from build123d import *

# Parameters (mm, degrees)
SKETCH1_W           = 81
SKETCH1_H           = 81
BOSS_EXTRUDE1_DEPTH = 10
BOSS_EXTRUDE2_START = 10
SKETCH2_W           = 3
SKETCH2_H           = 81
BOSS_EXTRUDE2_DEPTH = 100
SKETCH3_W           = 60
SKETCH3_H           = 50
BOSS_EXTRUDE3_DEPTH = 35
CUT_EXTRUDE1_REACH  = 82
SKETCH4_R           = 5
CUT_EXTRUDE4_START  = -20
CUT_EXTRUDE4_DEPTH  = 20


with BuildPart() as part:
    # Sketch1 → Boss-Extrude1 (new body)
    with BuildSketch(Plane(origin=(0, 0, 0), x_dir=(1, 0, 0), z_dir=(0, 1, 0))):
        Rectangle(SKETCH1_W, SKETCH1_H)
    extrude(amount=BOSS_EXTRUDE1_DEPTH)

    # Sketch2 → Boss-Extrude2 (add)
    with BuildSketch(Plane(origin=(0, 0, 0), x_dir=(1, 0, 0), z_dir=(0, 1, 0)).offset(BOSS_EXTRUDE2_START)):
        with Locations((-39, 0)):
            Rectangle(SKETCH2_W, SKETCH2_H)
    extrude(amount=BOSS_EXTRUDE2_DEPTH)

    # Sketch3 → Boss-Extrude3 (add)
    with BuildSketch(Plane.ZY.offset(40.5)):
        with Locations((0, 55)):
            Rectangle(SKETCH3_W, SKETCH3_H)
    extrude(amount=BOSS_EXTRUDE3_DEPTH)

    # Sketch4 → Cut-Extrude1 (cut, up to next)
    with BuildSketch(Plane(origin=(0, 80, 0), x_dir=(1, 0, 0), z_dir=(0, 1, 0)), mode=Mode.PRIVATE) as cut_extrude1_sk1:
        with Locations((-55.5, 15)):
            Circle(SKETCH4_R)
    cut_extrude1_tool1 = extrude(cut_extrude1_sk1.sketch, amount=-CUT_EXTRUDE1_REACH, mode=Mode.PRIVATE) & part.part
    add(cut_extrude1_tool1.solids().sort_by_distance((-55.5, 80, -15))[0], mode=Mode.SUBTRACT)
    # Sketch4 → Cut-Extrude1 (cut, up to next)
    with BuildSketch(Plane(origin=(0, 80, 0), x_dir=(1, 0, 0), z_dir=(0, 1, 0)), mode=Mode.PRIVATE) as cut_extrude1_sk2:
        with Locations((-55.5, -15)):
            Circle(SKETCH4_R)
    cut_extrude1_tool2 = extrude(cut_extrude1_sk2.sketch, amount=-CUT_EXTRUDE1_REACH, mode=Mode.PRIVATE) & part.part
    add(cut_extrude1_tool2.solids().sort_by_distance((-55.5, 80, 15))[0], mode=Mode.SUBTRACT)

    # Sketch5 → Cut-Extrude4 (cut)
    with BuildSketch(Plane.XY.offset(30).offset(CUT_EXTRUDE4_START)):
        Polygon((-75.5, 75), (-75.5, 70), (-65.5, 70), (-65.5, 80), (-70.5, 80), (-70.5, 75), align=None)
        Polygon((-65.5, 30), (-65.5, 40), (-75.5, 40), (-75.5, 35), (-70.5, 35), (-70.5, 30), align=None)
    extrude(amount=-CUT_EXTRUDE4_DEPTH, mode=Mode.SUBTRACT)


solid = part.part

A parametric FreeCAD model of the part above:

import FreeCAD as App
import Part
import Sketcher
Q = App.Units.Quantity

doc = App.newDocument("Part")
body = doc.addObject("PartDesign::Body", "Body")

sketch1 = body.newObject("Sketcher::SketchObject", "Sketch")
sketch1.AttachmentSupport = (doc.getObject("XZ_Plane"), [""])
sketch1.MapMode = "FlatFace"
sketch1.addGeometry([
    Part.LineSegment(App.Vector(-40, -40, 0), App.Vector(-40, 40, 0)),
    Part.LineSegment(App.Vector(-40, 40, 0), App.Vector(40, 40, 0)),
    Part.LineSegment(App.Vector(40, 40, 0), App.Vector(40, -40, 0)),
    Part.LineSegment(App.Vector(40, -40, 0), App.Vector(-40, -40, 0)),
], False)
sketch1.addConstraint([
    Sketcher.Constraint("Coincident", 0, 2, 1, 1),
    Sketcher.Constraint("Coincident", 1, 2, 2, 1),
    Sketcher.Constraint("Coincident", 2, 2, 3, 1),
    Sketcher.Constraint("Coincident", 3, 2, 0, 1),
    Sketcher.Constraint("Vertical", 0),
    Sketcher.Constraint("Horizontal", 1),
    Sketcher.Constraint("Vertical", 2),
    Sketcher.Constraint("Horizontal", 3),
    Sketcher.Constraint("Symmetric", 0, 2, 2, 2, -1, 1),
    Sketcher.Constraint("Equal", 3, 0),
    Sketcher.Constraint("DistanceX", 1, 1, 1, 2, Q("81 mm")),
])
pad1 = body.newObject("PartDesign::Pad", "Pad")
pad1.Profile = sketch1
pad1.Length = 10
pad1.Reversed = True

sketch2 = body.newObject("Sketcher::SketchObject", "Sketch001")
sketch2.AttachmentSupport = (doc.getObject("XZ_Plane"), [""])
sketch2.MapMode = "FlatFace"
sketch2.AttachmentOffset = App.Placement(App.Vector(0, 0, -10), App.Rotation())
sketch2.addGeometry([
    Part.LineSegment(App.Vector(-40.5, -40.5, 0), App.Vector(-40.5, 40.5, 0)),
    Part.LineSegment(App.Vector(-40.5, 40.5, 0), App.Vector(-37.5, 40.5, 0)),
    Part.LineSegment(App.Vector(-37.5, 40.5, 0), App.Vector(-37.5, -40.5, 0)),
    Part.LineSegment(App.Vector(-37.5, -40.5, 0), App.Vector(-40.5, -40.5, 0)),
], False)
sketch2.addConstraint([
    Sketcher.Constraint("Coincident", 0, 2, 1, 1),
    Sketcher.Constraint("Coincident", 1, 2, 2, 1),
    Sketcher.Constraint("Coincident", 2, 2, 3, 1),
    Sketcher.Constraint("Coincident", 3, 2, 0, 1),
    Sketcher.Constraint("Vertical", 0),
    Sketcher.Constraint("Horizontal", 1),
    Sketcher.Constraint("Vertical", 2),
    Sketcher.Constraint("Horizontal", 3),
    Sketcher.Constraint("DistanceX", 1, 1, 1, 2, Q("3 mm")),
    Sketcher.Constraint("DistanceY", 0, 1, 0, 2, Q("81 mm")),
    Sketcher.Constraint("DistanceX", 0, 2, -1, 1, Q("40.5 mm")),
    Sketcher.Constraint("DistanceY", -1, 1, 0, 2, Q("40.5 mm")),
])
pad2 = body.newObject("PartDesign::Pad", "Pad001")
pad2.Profile = sketch2
pad2.Length = 100
pad2.Reversed = True

sketch3 = body.newObject("Sketcher::SketchObject", "Sketch002")
sketch3.AttachmentSupport = (doc.getObject("YZ_Plane"), [""])
sketch3.MapMode = "FlatFace"
sketch3.AttachmentOffset = App.Placement(App.Vector(0, 0, -40.5), App.Rotation())
sketch3.addGeometry([
    Part.LineSegment(App.Vector(80, -30, 0), App.Vector(30, -30, 0)),
    Part.LineSegment(App.Vector(30, -30, 0), App.Vector(30, 30, 0)),
    Part.LineSegment(App.Vector(30, 30, 0), App.Vector(80, 30, 0)),
    Part.LineSegment(App.Vector(80, 30, 0), App.Vector(80, -30, 0)),
], False)
sketch3.addConstraint([
    Sketcher.Constraint("Coincident", 0, 2, 1, 1),
    Sketcher.Constraint("Coincident", 1, 2, 2, 1),
    Sketcher.Constraint("Coincident", 2, 2, 3, 1),
    Sketcher.Constraint("Coincident", 3, 2, 0, 1),
    Sketcher.Constraint("Horizontal", 0),
    Sketcher.Constraint("Vertical", 1),
    Sketcher.Constraint("Horizontal", 2),
    Sketcher.Constraint("Vertical", 3),
    Sketcher.Constraint("DistanceX", 0, 2, 0, 1, Q("50 mm")),
    Sketcher.Constraint("DistanceY", 1, 1, 1, 2, Q("60 mm")),
    Sketcher.Constraint("DistanceX", -1, 1, 0, 2, Q("30 mm")),
    Sketcher.Constraint("DistanceY", 0, 2, -1, 1, Q("30 mm")),
])
pad3 = body.newObject("PartDesign::Pad", "Pad002")
pad3.Profile = sketch3
pad3.Length = 35
pad3.Reversed = True

sketch4 = body.newObject("Sketcher::SketchObject", "Sketch003")
sketch4.AttachmentSupport = (doc.getObject("XZ_Plane"), [""])
sketch4.MapMode = "FlatFace"
sketch4.AttachmentOffset = App.Placement(App.Vector(0, 0, -80), App.Rotation())
sketch4.addGeometry(Part.Circle(App.Vector(-56, -15, 0), App.Vector(0, 0, 1), 5), False)
sketch4.addConstraint([
    Sketcher.Constraint("Diameter", 0, Q("10 mm")),
    Sketcher.Constraint("DistanceY", 0, 3, -1, 1, Q("15 mm")),
    Sketcher.Constraint("DistanceX", 0, 3, -1, 1, Q("55.5 mm")),
])
pocket1 = body.newObject("PartDesign::Pocket", "Pocket")
pocket1.Profile = sketch4
pocket1.Type = "UpToFirst"
pocket1.Reversed = True

sketch5 = body.newObject("Sketcher::SketchObject", "Sketch004")
sketch5.AttachmentSupport = (doc.getObject("XZ_Plane"), [""])
sketch5.MapMode = "FlatFace"
sketch5.AttachmentOffset = App.Placement(App.Vector(0, 0, -80), App.Rotation())
sketch5.addGeometry(Part.Circle(App.Vector(-56, 15, 0), App.Vector(0, 0, 1), 5), False)
sketch5.addConstraint([
    Sketcher.Constraint("Diameter", 0, Q("10 mm")),
    Sketcher.Constraint("DistanceY", -1, 1, 0, 3, Q("15 mm")),
    Sketcher.Constraint("DistanceX", 0, 3, -1, 1, Q("55.5 mm")),
])
pocket2 = body.newObject("PartDesign::Pocket", "Pocket001")
pocket2.Profile = sketch5
pocket2.Type = "UpToFirst"
pocket2.Reversed = True

sketch6 = body.newObject("Sketcher::SketchObject", "Sketch005")
sketch6.AttachmentSupport = (doc.getObject("XY_Plane"), [""])
sketch6.MapMode = "FlatFace"
sketch6.AttachmentOffset = App.Placement(App.Vector(0, 0, 10), App.Rotation())
sketch6.addGeometry([
    Part.LineSegment(App.Vector(-76, 75, 0), App.Vector(-76, 70, 0)),
    Part.LineSegment(App.Vector(-76, 70, 0), App.Vector(-66, 70, 0)),
    Part.LineSegment(App.Vector(-66, 70, 0), App.Vector(-66, 80, 0)),
    Part.LineSegment(App.Vector(-66, 80, 0), App.Vector(-70, 80, 0)),
    Part.LineSegment(App.Vector(-70, 80, 0), App.Vector(-70, 75, 0)),
    Part.LineSegment(App.Vector(-70, 75, 0), App.Vector(-76, 75, 0)),
    Part.LineSegment(App.Vector(-66, 30, 0), App.Vector(-66, 40, 0)),
    Part.LineSegment(App.Vector(-66, 40, 0), App.Vector(-76, 40, 0)),
    Part.LineSegment(App.Vector(-76, 40, 0), App.Vector(-76, 35, 0)),
    Part.LineSegment(App.Vector(-76, 35, 0), App.Vector(-70, 35, 0)),
    Part.LineSegment(App.Vector(-70, 35, 0), App.Vector(-70, 30, 0)),
    Part.LineSegment(App.Vector(-70, 30, 0), App.Vector(-66, 30, 0)),
], False)
sketch6.addConstraint([
    Sketcher.Constraint("Coincident", 0, 2, 1, 1),
    Sketcher.Constraint("Coincident", 1, 2, 2, 1),
    Sketcher.Constraint("Coincident", 2, 2, 3, 1),
    Sketcher.Constraint("Coincident", 3, 2, 4, 1),
    Sketcher.Constraint("Coincident", 4, 2, 5, 1),
    Sketcher.Constraint("Coincident", 5, 2, 0, 1),
    Sketcher.Constraint("Coincident", 6, 2, 7, 1),
    Sketcher.Constraint("Coincident", 7, 2, 8, 1),
    Sketcher.Constraint("Coincident", 8, 2, 9, 1),
    Sketcher.Constraint("Coincident", 9, 2, 10, 1),
    Sketcher.Constraint("Coincident", 10, 2, 11, 1),
    Sketcher.Constraint("Coincident", 11, 2, 6, 1),
    Sketcher.Constraint("Vertical", 0),
    Sketcher.Constraint("Horizontal", 1),
    Sketcher.Constraint("Vertical", 2),
    Sketcher.Constraint("Horizontal", 3),
    Sketcher.Constraint("Vertical", 4),
    Sketcher.Constraint("Horizontal", 5),
    Sketcher.Constraint("Vertical", 6),
    Sketcher.Constraint("Horizontal", 7),
    Sketcher.Constraint("Vertical", 8),
    Sketcher.Constraint("Horizontal", 9),
    Sketcher.Constraint("Vertical", 10),
    Sketcher.Constraint("Horizontal", 11),
    Sketcher.Constraint("Vertical", 2, 2, 6, 2),
    Sketcher.Constraint("Vertical", 5, 2, 7, 2),
    Sketcher.Constraint("Vertical", 4, 2, 9, 2),
    Sketcher.Constraint("Equal", 3, 5),
    Sketcher.Constraint("Equal", 11, 0),
    Sketcher.Constraint("Equal", 7, 2),
    Sketcher.Constraint("Equal", 2, 6),
    Sketcher.Constraint("Equal", 4, 8),
    Sketcher.Constraint("DistanceX", 1, 1, 1, 2, Q("10 mm")),
    Sketcher.Constraint("DistanceY", -1, 1, 0, 2, Q("70 mm")),
    Sketcher.Constraint("DistanceY", -1, 1, 6, 2, Q("40 mm")),
    Sketcher.Constraint("DistanceX", 0, 2, -1, 1, Q("75.5 mm")),
])
pocket3 = body.newObject("PartDesign::Pocket", "Pocket002")
pocket3.Profile = sketch6
pocket3.Length = 20

doc.recompute()
